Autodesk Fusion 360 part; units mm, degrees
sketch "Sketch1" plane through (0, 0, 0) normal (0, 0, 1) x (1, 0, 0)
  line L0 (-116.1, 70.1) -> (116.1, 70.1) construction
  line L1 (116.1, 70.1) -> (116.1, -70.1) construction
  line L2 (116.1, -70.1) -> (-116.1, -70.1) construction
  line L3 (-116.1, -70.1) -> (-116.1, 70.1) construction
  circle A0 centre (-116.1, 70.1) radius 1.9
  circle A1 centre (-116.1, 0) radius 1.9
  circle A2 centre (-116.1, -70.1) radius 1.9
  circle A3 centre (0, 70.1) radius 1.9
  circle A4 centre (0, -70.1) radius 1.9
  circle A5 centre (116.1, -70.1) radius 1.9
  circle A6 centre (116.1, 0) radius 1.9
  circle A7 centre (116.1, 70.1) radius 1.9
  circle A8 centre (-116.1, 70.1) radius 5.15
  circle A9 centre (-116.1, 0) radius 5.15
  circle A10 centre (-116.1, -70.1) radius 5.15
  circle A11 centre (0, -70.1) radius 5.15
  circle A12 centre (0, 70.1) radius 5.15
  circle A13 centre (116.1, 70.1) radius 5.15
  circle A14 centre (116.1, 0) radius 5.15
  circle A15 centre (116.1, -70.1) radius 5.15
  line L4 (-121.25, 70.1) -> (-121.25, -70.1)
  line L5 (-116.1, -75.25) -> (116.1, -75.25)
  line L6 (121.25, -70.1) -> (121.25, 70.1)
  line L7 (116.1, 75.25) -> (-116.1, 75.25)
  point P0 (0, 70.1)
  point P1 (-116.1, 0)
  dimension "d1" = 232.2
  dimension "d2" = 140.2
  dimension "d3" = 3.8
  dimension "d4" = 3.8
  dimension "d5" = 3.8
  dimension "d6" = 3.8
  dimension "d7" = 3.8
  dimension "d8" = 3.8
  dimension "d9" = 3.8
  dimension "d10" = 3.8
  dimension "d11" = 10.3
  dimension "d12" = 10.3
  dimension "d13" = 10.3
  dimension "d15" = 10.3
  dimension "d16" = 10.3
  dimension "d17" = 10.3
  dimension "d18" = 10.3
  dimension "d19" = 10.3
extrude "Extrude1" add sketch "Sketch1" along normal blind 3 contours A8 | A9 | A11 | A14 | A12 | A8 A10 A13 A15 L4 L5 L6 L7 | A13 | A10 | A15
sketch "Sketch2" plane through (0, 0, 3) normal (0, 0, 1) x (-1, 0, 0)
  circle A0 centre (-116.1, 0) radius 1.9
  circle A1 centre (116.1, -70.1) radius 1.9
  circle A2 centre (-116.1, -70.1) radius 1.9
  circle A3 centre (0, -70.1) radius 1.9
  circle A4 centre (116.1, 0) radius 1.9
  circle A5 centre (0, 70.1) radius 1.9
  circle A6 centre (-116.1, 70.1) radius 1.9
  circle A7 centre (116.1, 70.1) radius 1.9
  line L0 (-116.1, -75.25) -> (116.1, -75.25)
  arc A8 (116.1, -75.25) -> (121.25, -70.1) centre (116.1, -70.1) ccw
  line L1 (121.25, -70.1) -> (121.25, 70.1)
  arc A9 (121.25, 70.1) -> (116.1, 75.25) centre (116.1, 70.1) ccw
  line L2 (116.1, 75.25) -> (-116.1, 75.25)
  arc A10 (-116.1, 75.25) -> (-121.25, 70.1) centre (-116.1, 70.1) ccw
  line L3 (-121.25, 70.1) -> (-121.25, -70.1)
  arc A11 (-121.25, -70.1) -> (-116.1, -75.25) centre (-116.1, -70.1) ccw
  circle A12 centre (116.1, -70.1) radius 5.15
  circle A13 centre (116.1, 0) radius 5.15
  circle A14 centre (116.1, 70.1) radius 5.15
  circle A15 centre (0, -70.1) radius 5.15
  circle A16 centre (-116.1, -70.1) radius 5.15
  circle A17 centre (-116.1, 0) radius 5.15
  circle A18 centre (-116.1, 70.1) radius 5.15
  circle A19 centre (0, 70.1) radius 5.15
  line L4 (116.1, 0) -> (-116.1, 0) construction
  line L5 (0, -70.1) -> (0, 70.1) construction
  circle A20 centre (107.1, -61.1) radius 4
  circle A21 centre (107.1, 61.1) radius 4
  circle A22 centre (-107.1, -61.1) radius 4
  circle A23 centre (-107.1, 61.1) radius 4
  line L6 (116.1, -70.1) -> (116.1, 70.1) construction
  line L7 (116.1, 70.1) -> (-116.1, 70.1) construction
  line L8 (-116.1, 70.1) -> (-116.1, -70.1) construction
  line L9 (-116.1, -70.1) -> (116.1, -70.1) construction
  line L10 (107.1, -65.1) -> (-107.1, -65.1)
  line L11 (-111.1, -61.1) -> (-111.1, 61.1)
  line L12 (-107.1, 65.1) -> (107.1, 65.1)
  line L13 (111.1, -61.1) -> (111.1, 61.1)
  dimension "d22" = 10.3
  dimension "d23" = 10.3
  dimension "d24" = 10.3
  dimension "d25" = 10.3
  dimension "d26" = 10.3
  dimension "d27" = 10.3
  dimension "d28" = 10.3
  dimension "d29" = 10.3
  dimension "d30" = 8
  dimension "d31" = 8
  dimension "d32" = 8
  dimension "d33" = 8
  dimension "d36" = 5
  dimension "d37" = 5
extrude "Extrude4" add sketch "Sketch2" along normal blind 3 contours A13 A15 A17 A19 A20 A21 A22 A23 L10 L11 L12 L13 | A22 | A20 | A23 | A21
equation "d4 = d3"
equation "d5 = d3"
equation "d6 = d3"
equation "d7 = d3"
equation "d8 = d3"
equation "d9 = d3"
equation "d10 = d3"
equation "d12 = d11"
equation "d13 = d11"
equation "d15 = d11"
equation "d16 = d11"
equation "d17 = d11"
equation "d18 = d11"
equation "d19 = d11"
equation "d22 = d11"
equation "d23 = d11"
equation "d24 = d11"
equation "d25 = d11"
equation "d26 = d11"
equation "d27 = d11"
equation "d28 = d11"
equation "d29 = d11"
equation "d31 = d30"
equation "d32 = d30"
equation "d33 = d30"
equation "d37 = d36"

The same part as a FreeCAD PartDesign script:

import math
import FreeCAD as App
import Part
import Sketcher
from FreeCAD import Vector

doc = App.newDocument("Part")
body = doc.addObject("PartDesign::Body", "Body")

# Sketch on XY plane
sketch1 = doc.addObject("Sketcher::SketchObject", "Sketch")
body.addObject(sketch1)
sketch1.AttachmentSupport = (doc.XY_Plane, [""])
sketch1.MapMode = "FlatFace"
sketch1.addGeometry(Part.ArcOfCircle(Part.Circle(Vector(-116.1, 70.1, 0), Vector(0, 0, 1), 5.15), math.radians(90), math.radians(180)), False)
sketch1.addGeometry(Part.LineSegment(Vector(-121.25, 70.1, 0), Vector(-121.25, -70.1, 0)), False)
sketch1.addGeometry(Part.ArcOfCircle(Part.Circle(Vector(-116.1, -70.1, 0), Vector(0, 0, 1), 5.15), math.radians(180), math.radians(270)), False)
sketch1.addGeometry(Part.LineSegment(Vector(-116.1, -75.25, 0), Vector(116.1, -75.25, 0)), False)
sketch1.addGeometry(Part.ArcOfCircle(Part.Circle(Vector(116.1, -70.1, 0), Vector(0, 0, 1), 5.15), math.radians(-90), math.radians(0)), False)
sketch1.addGeometry(Part.LineSegment(Vector(121.25, -70.1, 0), Vector(121.25, 70.1, 0)), False)
sketch1.addGeometry(Part.ArcOfCircle(Part.Circle(Vector(116.1, 70.1, 0), Vector(0, 0, 1), 5.15), math.radians(0), math.radians(90)), False)
sketch1.addGeometry(Part.LineSegment(Vector(116.1, 75.25, 0), Vector(-116.1, 75.25, 0)), False)
sketch1.addGeometry(Part.Circle(Vector(-116.1, 70.1, 0), Vector(0, 0, 1), 1.9), False)
sketch1.addGeometry(Part.Circle(Vector(0, 70.1, 0), Vector(0, 0, 1), 1.9), False)
sketch1.addGeometry(Part.Circle(Vector(116.1, 70.1, 0), Vector(0, 0, 1), 1.9), False)
sketch1.addGeometry(Part.Circle(Vector(116.1, -70.1, 0), Vector(0, 0, 1), 1.9), False)
sketch1.addGeometry(Part.Circle(Vector(-116.1, -70.1, 0), Vector(0, 0, 1), 1.9), False)
sketch1.addGeometry(Part.Circle(Vector(0, -70.1, 0), Vector(0, 0, 1), 1.9), False)
sketch1.addGeometry(Part.Circle(Vector(-116.1, 0, 0), Vector(0, 0, 1), 1.9), False)
sketch1.addGeometry(Part.Circle(Vector(116.1, 0, 0), Vector(0, 0, 1), 1.9), False)
sketch1.addConstraint(Sketcher.Constraint("Tangent", 0, 2, 1, 1))
sketch1.addConstraint(Sketcher.Constraint("Tangent", 1, 2, 2, 1))
sketch1.addConstraint(Sketcher.Constraint("Tangent", 2, 2, 3, 1))
sketch1.addConstraint(Sketcher.Constraint("Tangent", 3, 2, 4, 1))
sketch1.addConstraint(Sketcher.Constraint("Tangent", 4, 2, 5, 1))
sketch1.addConstraint(Sketcher.Constraint("Tangent", 5, 2, 6, 1))
sketch1.addConstraint(Sketcher.Constraint("Tangent", 6, 2, 7, 1))
sketch1.addConstraint(Sketcher.Constraint("Tangent", 7, 2, 0, 1))
sketch1.addConstraint(Sketcher.Constraint("Vertical", 1))
sketch1.addConstraint(Sketcher.Constraint("Horizontal", 3))
sketch1.addConstraint(Sketcher.Constraint("Vertical", 5))
sketch1.addConstraint(Sketcher.Constraint("Horizontal", 7))
sketch1.addConstraint(Sketcher.Constraint("Coincident", 8, 3, 0, 3))
sketch1.addConstraint(Sketcher.Constraint("Coincident", 10, 3, 6, 3))
sketch1.addConstraint(Sketcher.Constraint("Coincident", 11, 3, 4, 3))
sketch1.addConstraint(Sketcher.Constraint("Coincident", 12, 3, 2, 3))
sketch1.addConstraint(Sketcher.Constraint("Equal", 0, 2))
sketch1.addConstraint(Sketcher.Constraint("Equal", 2, 4))
sketch1.addConstraint(Sketcher.Constraint("Equal", 4, 6))
sketch1.addConstraint(Sketcher.Constraint("Equal", 8, 9))
sketch1.addConstraint(Sketcher.Constraint("Equal", 9, 10))
sketch1.addConstraint(Sketcher.Constraint("Equal", 10, 11))
sketch1.addConstraint(Sketcher.Constraint("Equal", 11, 12))
sketch1.addConstraint(Sketcher.Constraint("Equal", 12, 13))
sketch1.addConstraint(Sketcher.Constraint("Equal", 13, 14))
sketch1.addConstraint(Sketcher.Constraint("Equal", 14, 15))
sketch1.addConstraint(Sketcher.Constraint("Symmetric", 0, 3, 4, 3, -1, 1))
sketch1.addConstraint(Sketcher.Constraint("Symmetric", 9, 3, 13, 3, -1, 1))
sketch1.addConstraint(Sketcher.Constraint("Symmetric", 14, 3, 15, 3, -1, 1))
sketch1.addConstraint(Sketcher.Constraint("PointOnObject", 9, 3, -2))
sketch1.addConstraint(Sketcher.Constraint("PointOnObject", 14, 3, -1))
sketch1.addConstraint(Sketcher.Constraint("Horizontal", 8, 3, 9, 3))
sketch1.addConstraint(Sketcher.Constraint("Vertical", 12, 3, 14, 3))
sketch1.addConstraint(Sketcher.Constraint("Diameter", 8, 3.8))
sketch1.addConstraint(Sketcher.Constraint("Radius", 0, 5.15))
sketch1.addConstraint(Sketcher.Constraint("DistanceX", 3, 1, 3, 2, 232.2))
sketch1.addConstraint(Sketcher.Constraint("DistanceY", 1, 2, 1, 1, 140.2))
pad1 = doc.addObject("PartDesign::Pad", "Pad")
body.addObject(pad1)
pad1.Profile = sketch1
pad1.Length = 3

# Sketch on XY plane
sketch2 = doc.addObject("Sketcher::SketchObject", "Sketch001")
body.addObject(sketch2)
sketch2.AttachmentSupport = (doc.XY_Plane, [""])
sketch2.MapMode = "FlatFace"
sketch2.AttachmentOffset = App.Placement(Vector(0, 0, 3), App.Rotation())
sketch2.addGeometry(Part.LineSegment(Vector(107.1, 65.1, 0), Vector(1.233896, 65.1, 0)), False)
sketch2.addGeometry(Part.ArcOfCircle(Part.Circle(Vector(0, 70.1, 0), Vector(0, 0, 1), 5.15), math.radians(-103.862432), math.radians(-76.137568)), False)
sketch2.addGeometry(Part.LineSegment(Vector(-1.233896, 65.1, 0), Vector(-107.1, 65.1, 0)), False)
sketch2.addGeometry(Part.ArcOfCircle(Part.Circle(Vector(-107.1, 61.1, 0), Vector(0, 0, 1), 4), math.radians(90), math.radians(180)), False)
sketch2.addGeometry(Part.LineSegment(Vector(-111.1, 61.1, 0), Vector(-111.1, 1.233896, 0)), False)
sketch2.addGeometry(Part.ArcOfCircle(Part.Circle(Vector(-116.1, 0, 0), Vector(0, 0, 1), 5.15), math.radians(-13.862432), math.radians(13.862432)), False)
sketch2.addGeometry(Part.LineSegment(Vector(-111.1, -1.233896, 0), Vector(-111.1, -61.1, 0)), False)
sketch2.addGeometry(Part.ArcOfCircle(Part.Circle(Vector(-107.1, -61.1, 0), Vector(0, 0, 1), 4), math.radians(180), math.radians(270)), False)
sketch2.addGeometry(Part.LineSegment(Vector(-107.1, -65.1, 0), Vector(-1.233896, -65.1, 0)), False)
sketch2.addGeometry(Part.ArcOfCircle(Part.Circle(Vector(0, -70.1, 0), Vector(0, 0, 1), 5.15), math.radians(76.137568), math.radians(103.862432)), False)
sketch2.addGeometry(Part.LineSegment(Vector(1.233896, -65.1, 0), Vector(107.1, -65.1, 0)), False)
sketch2.addGeometry(Part.ArcOfCircle(Part.Circle(Vector(107.1, -61.1, 0), Vector(0, 0, 1), 4), math.radians(-90), math.radians(0)), False)
sketch2.addGeometry(Part.LineSegment(Vector(111.1, -61.1, 0), Vector(111.1, -1.233896, 0)), False)
sketch2.addGeometry(Part.ArcOfCircle(Part.Circle(Vector(116.1, 0, 0), Vector(0, 0, 1), 5.15), math.radians(166.137568), math.radians(193.862432)), False)
sketch2.addGeometry(Part.LineSegment(Vector(111.1, 1.233896, 0), Vector(111.1, 61.1, 0)), False)
sketch2.addGeometry(Part.ArcOfCircle(Part.Circle(Vector(107.1, 61.1, 0), Vector(0, 0, 1), 4), math.radians(0), math.radians(90)), False)
sketch2.addConstraint(Sketcher.Constraint("Coincident", 0, 2, 1, 2))
sketch2.addConstraint(Sketcher.Constraint("Coincident", 1, 1, 2, 1))
sketch2.addConstraint(Sketcher.Constraint("Tangent", 2, 2, 3, 1))
sketch2.addConstraint(Sketcher.Constraint("Tangent", 3, 2, 4, 1))
sketch2.addConstraint(Sketcher.Constraint("Coincident", 4, 2, 5, 2))
sketch2.addConstraint(Sketcher.Constraint("Coincident", 5, 1, 6, 1))
sketch2.addConstraint(Sketcher.Constraint("Tangent", 6, 2, 7, 1))
sketch2.addConstraint(Sketcher.Constraint("Tangent", 7, 2, 8, 1))
sketch2.addConstraint(Sketcher.Constraint("Coincident", 8, 2, 9, 2))
sketch2.addConstraint(Sketcher.Constraint("Coincident", 9, 1, 10, 1))
sketch2.addConstraint(Sketcher.Constraint("Tangent", 10, 2, 11, 1))
sketch2.addConstraint(Sketcher.Constraint("Tangent", 11, 2, 12, 1))
sketch2.addConstraint(Sketcher.Constraint("Coincident", 12, 2, 13, 2))
sketch2.addConstraint(Sketcher.Constraint("Coincident", 13, 1, 14, 1))
sketch2.addConstraint(Sketcher.Constraint("Tangent", 14, 2, 15, 1))
sketch2.addConstraint(Sketcher.Constraint("Tangent", 15, 2, 0, 1))
sketch2.addConstraint(Sketcher.Constraint("Horizontal", 0))
sketch2.addConstraint(Sketcher.Constraint("Horizontal", 2))
sketch2.addConstraint(Sketcher.Constraint("Vertical", 4))
sketch2.addConstraint(Sketcher.Constraint("Vertical", 6))
sketch2.addConstraint(Sketcher.Constraint("Horizontal", 8))
sketch2.addConstraint(Sketcher.Constraint("Horizontal", 10))
sketch2.addConstraint(Sketcher.Constraint("Vertical", 12))
sketch2.addConstraint(Sketcher.Constraint("Vertical", 14))
sketch2.addConstraint(Sketcher.Constraint("Equal", 1, 5))
sketch2.addConstraint(Sketcher.Constraint("Equal", 3, 7))
sketch2.addConstraint(Sketcher.Constraint("Equal", 5, 9))
sketch2.addConstraint(Sketcher.Constraint("Equal", 7, 11))
sketch2.addConstraint(Sketcher.Constraint("Equal", 9, 13))
sketch2.addConstraint(Sketcher.Constraint("Equal", 11, 15))
sketch2.addConstraint(Sketcher.Constraint("Symmetric", 1, 3, 9, 3, -1, 1))
sketch2.addConstraint(Sketcher.Constraint("Symmetric", 3, 3, 11, 3, -1, 1))
sketch2.addConstraint(Sketcher.Constraint("Symmetric", 5, 3, 13, 3, -1, 1))
sketch2.addConstraint(Sketcher.Constraint("Symmetric", 7, 3, 15, 3, -1, 1))
sketch2.addConstraint(Sketcher.Constraint("Symmetric", 7, 3, 11, 3, -2))
sketch2.addConstraint(Sketcher.Constraint("PointOnObject", 1, 3, -2))
sketch2.addConstraint(Sketcher.Constraint("PointOnObject", 5, 3, -1))
sketch2.addConstraint(Sketcher.Constraint("Radius", 3, 4.0))
sketch2.addConstraint(Sketcher.Constraint("Radius", 1, 5.15))
sketch2.addConstraint(Sketcher.Constraint("DistanceY", 0, 2, 1, 3, 5.0))
sketch2.addConstraint(Sketcher.Constraint("DistanceX", 5, 3, 3, 2, 5.0))
sketch2.addConstraint(Sketcher.Constraint("DistanceY", -1, 1, 1, 3, 70.1))
sketch2.addConstraint(Sketcher.Constraint("DistanceX", 3, 3, -1, 1, 107.1))
pad2 = doc.addObject("PartDesign::Pad", "Pad001")
body.addObject(pad2)
pad2.Profile = sketch2
pad2.Length = 3

doc.recompute()
